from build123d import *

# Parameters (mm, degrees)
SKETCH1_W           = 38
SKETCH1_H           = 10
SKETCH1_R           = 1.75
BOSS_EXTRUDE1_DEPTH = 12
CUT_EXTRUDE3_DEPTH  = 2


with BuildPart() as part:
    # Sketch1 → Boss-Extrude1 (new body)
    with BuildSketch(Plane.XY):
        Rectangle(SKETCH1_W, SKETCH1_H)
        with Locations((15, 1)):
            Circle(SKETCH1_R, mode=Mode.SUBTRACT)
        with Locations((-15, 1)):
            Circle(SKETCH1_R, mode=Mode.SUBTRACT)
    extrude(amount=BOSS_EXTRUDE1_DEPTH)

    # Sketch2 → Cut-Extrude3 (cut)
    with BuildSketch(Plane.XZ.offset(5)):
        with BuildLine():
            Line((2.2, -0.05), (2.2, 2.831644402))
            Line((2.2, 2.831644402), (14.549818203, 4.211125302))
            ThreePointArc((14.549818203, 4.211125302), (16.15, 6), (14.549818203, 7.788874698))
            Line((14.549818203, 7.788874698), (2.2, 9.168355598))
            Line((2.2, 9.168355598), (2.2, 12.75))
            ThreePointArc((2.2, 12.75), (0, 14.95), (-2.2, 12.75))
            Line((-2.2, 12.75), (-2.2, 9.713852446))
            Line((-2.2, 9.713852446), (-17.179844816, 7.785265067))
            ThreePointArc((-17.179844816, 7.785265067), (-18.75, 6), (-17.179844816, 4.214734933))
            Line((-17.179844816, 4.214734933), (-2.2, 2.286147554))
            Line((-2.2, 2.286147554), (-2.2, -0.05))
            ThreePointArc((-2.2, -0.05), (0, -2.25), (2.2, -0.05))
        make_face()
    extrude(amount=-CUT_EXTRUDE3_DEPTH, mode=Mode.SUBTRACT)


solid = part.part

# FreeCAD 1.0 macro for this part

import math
import FreeCAD as App
import Part
import Sketcher
Q = App.Units.Quantity

doc = App.newDocument("Part")
body = doc.addObject("PartDesign::Body", "Body")

# Sketch on XY plane
sketch1 = body.newObject("Sketcher::SketchObject", "Sketch")
sketch1.AttachmentSupport = (doc.getObject("XY_Plane"), [""])
sketch1.MapMode = "FlatFace"
sketch1.addGeometry([
    Part.LineSegment(App.Vector(-19, 5, 0), App.Vector(-19, -5, 0)),  # 0
    Part.LineSegment(App.Vector(-19, -5, 0), App.Vector(19, -5, 0)),  # 1
    Part.LineSegment(App.Vector(19, -5, 0), App.Vector(19, 5, 0)),  # 2
    Part.LineSegment(App.Vector(19, 5, 0), App.Vector(-19, 5, 0)),  # 3
    Part.Circle(App.Vector(-15, 1, 0), App.Vector(0, 0, 1), 1.8),  # 4
    Part.Circle(App.Vector(15, 1, 0), App.Vector(0, 0, 1), 1.8),  # 5
], False)
sketch1.addConstraint([
    Sketcher.Constraint("Coincident", 0, 2, 1, 1),
    Sketcher.Constraint("Coincident", 1, 2, 2, 1),
    Sketcher.Constraint("Coincident", 2, 2, 3, 1),
    Sketcher.Constraint("Coincident", 3, 2, 0, 1),
    Sketcher.Constraint("Vertical", 0),
    Sketcher.Constraint("Horizontal", 1),
    Sketcher.Constraint("Vertical", 2),
    Sketcher.Constraint("Horizontal", 3),
    Sketcher.Constraint("Equal", 4, 5),
    Sketcher.Constraint("Symmetric", 0, 2, 2, 2, -1, 1),
    Sketcher.Constraint("Symmetric", 4, 3, 5, 3, -2),
    Sketcher.Constraint("Diameter", 4, Q("3.5 mm")),
    Sketcher.Constraint("DistanceX", 1, 1, 1, 2, Q("38 mm")),
    Sketcher.Constraint("DistanceY", 0, 2, 0, 1, Q("10 mm")),
    Sketcher.Constraint("DistanceX", 4, 3, -1, 1, Q("15 mm")),
    Sketcher.Constraint("DistanceY", -1, 1, 4, 3, Q("1 mm")),
])
pad1 = body.newObject("PartDesign::Pad", "Pad")
pad1.Profile = sketch1
pad1.Length = 12

# Sketch on XZ plane
sketch2 = body.newObject("Sketcher::SketchObject", "Sketch001")
sketch2.AttachmentSupport = (doc.getObject("XZ_Plane"), [""])
sketch2.MapMode = "FlatFace"
sketch2.AttachmentOffset = App.Placement(App.Vector(0, 0, 5), App.Rotation())
sketch2.addGeometry([
    Part.LineSegment(App.Vector(2.2, -0.1, 0), App.Vector(2.2, 2.8, 0)),  # 0
    Part.LineSegment(App.Vector(2.2, 2.8, 0), App.Vector(14.5, 4.2, 0)),  # 1
    Part.ArcOfCircle(Part.Circle(App.Vector(14.3, 6, 0), App.Vector(0, 0, 1), 1.8), math.radians(-84), math.radians(84)),  # 2
    Part.LineSegment(App.Vector(14.5, 7.8, 0), App.Vector(2.2, 9.2, 0)),  # 3
    Part.LineSegment(App.Vector(2.2, 9.2, 0), App.Vector(2.2, 12.8, 0)),  # 4
    Part.ArcOfCircle(Part.Circle(App.Vector(0, 12.8, 0), App.Vector(0, 0, 1), 2.2), math.radians(0), math.radians(180)),  # 5
    Part.LineSegment(App.Vector(-2.2, 12.8, 0), App.Vector(-2.2, 9.7, 0)),  # 6
    Part.LineSegment(App.Vector(-2.2, 9.7, 0), App.Vector(-17.2, 7.8, 0)),  # 7
    Part.ArcOfCircle(Part.Circle(App.Vector(-16.9, 6, 0), App.Vector(0, 0, 1), 1.8), math.radians(97), math.radians(263)),  # 8
    Part.LineSegment(App.Vector(-17.2, 4.2, 0), App.Vector(-2.2, 2.3, 0)),  # 9
    Part.LineSegment(App.Vector(-2.2, 2.3, 0), App.Vector(-2.2, -0.1, 0)),  # 10
    Part.ArcOfCircle(Part.Circle(App.Vector(0, -0.1, 0), App.Vector(0, 0, 1), 2.2), math.radians(180), math.radians(360)),  # 11
], False)
sketch2.addConstraint([
    Sketcher.Constraint("Coincident", 0, 2, 1, 1),
    Sketcher.Constraint("Tangent", 1, 2, 2, 1),
    Sketcher.Constraint("Tangent", 2, 2, 3, 1),
    Sketcher.Constraint("Coincident", 3, 2, 4, 1),
    Sketcher.Constraint("Tangent", 4, 2, 5, 1),
    Sketcher.Constraint("Tangent", 5, 2, 6, 1),
    Sketcher.Constraint("Coincident", 6, 2, 7, 1),
    Sketcher.Constraint("Tangent", 7, 2, 8, 1),
    Sketcher.Constraint("Tangent", 8, 2, 9, 1),
    Sketcher.Constraint("Coincident", 9, 2, 10, 1),
    Sketcher.Constraint("Tangent", 10, 2, 11, 1),
    Sketcher.Constraint("Tangent", 11, 2, 0, 1),
    Sketcher.Constraint("Vertical", 0),
    Sketcher.Constraint("Vertical", 4),
    Sketcher.Constraint("Vertical", 6),
    Sketcher.Constraint("Vertical", 10),
    Sketcher.Constraint("Equal", 2, 8),
    Sketcher.Constraint("Equal", 5, 11),
    Sketcher.Constraint("PointOnObject", 5, 3, -2),
    Sketcher.Constraint("PointOnObject", 11, 3, -2),
    Sketcher.Constraint("Horizontal", 2, 3, 8, 3),
    Sketcher.Constraint("Vertical", 1, 2, 2, 2),
    Sketcher.Constraint("Vertical", 7, 2, 8, 2),
    Sketcher.Constraint("Radius", 2, Q("1.8 mm")),
    Sketcher.Constraint("Radius", 5, Q("2.2 mm")),
    Sketcher.Constraint("DistanceY", -1, 1, 2, 3, Q("6 mm")),
    Sketcher.Constraint("DistanceX", 8, 3, 2, 3, Q("31.3 mm")),
    Sketcher.Constraint("DistanceY", 11, 3, 5, 3, Q("12.8 mm")),
    Sketcher.Constraint("DistanceX", -1, 1, 2, 3, Q("14.35 mm")),
    Sketcher.Constraint("DistanceY", -1, 1, 5, 3, Q("12.75 mm")),
    Sketcher.Constraint("DistanceY", 0, 1, 0, 2, Q("2.881644 mm")),
    Sketcher.Constraint("DistanceY", 6, 2, 6, 1, Q("3.036148 mm")),
])
pocket1 = body.newObject("PartDesign::Pocket", "Pocket")
pocket1.Profile = sketch2
pocket1.Length = 2

doc.recompute()
